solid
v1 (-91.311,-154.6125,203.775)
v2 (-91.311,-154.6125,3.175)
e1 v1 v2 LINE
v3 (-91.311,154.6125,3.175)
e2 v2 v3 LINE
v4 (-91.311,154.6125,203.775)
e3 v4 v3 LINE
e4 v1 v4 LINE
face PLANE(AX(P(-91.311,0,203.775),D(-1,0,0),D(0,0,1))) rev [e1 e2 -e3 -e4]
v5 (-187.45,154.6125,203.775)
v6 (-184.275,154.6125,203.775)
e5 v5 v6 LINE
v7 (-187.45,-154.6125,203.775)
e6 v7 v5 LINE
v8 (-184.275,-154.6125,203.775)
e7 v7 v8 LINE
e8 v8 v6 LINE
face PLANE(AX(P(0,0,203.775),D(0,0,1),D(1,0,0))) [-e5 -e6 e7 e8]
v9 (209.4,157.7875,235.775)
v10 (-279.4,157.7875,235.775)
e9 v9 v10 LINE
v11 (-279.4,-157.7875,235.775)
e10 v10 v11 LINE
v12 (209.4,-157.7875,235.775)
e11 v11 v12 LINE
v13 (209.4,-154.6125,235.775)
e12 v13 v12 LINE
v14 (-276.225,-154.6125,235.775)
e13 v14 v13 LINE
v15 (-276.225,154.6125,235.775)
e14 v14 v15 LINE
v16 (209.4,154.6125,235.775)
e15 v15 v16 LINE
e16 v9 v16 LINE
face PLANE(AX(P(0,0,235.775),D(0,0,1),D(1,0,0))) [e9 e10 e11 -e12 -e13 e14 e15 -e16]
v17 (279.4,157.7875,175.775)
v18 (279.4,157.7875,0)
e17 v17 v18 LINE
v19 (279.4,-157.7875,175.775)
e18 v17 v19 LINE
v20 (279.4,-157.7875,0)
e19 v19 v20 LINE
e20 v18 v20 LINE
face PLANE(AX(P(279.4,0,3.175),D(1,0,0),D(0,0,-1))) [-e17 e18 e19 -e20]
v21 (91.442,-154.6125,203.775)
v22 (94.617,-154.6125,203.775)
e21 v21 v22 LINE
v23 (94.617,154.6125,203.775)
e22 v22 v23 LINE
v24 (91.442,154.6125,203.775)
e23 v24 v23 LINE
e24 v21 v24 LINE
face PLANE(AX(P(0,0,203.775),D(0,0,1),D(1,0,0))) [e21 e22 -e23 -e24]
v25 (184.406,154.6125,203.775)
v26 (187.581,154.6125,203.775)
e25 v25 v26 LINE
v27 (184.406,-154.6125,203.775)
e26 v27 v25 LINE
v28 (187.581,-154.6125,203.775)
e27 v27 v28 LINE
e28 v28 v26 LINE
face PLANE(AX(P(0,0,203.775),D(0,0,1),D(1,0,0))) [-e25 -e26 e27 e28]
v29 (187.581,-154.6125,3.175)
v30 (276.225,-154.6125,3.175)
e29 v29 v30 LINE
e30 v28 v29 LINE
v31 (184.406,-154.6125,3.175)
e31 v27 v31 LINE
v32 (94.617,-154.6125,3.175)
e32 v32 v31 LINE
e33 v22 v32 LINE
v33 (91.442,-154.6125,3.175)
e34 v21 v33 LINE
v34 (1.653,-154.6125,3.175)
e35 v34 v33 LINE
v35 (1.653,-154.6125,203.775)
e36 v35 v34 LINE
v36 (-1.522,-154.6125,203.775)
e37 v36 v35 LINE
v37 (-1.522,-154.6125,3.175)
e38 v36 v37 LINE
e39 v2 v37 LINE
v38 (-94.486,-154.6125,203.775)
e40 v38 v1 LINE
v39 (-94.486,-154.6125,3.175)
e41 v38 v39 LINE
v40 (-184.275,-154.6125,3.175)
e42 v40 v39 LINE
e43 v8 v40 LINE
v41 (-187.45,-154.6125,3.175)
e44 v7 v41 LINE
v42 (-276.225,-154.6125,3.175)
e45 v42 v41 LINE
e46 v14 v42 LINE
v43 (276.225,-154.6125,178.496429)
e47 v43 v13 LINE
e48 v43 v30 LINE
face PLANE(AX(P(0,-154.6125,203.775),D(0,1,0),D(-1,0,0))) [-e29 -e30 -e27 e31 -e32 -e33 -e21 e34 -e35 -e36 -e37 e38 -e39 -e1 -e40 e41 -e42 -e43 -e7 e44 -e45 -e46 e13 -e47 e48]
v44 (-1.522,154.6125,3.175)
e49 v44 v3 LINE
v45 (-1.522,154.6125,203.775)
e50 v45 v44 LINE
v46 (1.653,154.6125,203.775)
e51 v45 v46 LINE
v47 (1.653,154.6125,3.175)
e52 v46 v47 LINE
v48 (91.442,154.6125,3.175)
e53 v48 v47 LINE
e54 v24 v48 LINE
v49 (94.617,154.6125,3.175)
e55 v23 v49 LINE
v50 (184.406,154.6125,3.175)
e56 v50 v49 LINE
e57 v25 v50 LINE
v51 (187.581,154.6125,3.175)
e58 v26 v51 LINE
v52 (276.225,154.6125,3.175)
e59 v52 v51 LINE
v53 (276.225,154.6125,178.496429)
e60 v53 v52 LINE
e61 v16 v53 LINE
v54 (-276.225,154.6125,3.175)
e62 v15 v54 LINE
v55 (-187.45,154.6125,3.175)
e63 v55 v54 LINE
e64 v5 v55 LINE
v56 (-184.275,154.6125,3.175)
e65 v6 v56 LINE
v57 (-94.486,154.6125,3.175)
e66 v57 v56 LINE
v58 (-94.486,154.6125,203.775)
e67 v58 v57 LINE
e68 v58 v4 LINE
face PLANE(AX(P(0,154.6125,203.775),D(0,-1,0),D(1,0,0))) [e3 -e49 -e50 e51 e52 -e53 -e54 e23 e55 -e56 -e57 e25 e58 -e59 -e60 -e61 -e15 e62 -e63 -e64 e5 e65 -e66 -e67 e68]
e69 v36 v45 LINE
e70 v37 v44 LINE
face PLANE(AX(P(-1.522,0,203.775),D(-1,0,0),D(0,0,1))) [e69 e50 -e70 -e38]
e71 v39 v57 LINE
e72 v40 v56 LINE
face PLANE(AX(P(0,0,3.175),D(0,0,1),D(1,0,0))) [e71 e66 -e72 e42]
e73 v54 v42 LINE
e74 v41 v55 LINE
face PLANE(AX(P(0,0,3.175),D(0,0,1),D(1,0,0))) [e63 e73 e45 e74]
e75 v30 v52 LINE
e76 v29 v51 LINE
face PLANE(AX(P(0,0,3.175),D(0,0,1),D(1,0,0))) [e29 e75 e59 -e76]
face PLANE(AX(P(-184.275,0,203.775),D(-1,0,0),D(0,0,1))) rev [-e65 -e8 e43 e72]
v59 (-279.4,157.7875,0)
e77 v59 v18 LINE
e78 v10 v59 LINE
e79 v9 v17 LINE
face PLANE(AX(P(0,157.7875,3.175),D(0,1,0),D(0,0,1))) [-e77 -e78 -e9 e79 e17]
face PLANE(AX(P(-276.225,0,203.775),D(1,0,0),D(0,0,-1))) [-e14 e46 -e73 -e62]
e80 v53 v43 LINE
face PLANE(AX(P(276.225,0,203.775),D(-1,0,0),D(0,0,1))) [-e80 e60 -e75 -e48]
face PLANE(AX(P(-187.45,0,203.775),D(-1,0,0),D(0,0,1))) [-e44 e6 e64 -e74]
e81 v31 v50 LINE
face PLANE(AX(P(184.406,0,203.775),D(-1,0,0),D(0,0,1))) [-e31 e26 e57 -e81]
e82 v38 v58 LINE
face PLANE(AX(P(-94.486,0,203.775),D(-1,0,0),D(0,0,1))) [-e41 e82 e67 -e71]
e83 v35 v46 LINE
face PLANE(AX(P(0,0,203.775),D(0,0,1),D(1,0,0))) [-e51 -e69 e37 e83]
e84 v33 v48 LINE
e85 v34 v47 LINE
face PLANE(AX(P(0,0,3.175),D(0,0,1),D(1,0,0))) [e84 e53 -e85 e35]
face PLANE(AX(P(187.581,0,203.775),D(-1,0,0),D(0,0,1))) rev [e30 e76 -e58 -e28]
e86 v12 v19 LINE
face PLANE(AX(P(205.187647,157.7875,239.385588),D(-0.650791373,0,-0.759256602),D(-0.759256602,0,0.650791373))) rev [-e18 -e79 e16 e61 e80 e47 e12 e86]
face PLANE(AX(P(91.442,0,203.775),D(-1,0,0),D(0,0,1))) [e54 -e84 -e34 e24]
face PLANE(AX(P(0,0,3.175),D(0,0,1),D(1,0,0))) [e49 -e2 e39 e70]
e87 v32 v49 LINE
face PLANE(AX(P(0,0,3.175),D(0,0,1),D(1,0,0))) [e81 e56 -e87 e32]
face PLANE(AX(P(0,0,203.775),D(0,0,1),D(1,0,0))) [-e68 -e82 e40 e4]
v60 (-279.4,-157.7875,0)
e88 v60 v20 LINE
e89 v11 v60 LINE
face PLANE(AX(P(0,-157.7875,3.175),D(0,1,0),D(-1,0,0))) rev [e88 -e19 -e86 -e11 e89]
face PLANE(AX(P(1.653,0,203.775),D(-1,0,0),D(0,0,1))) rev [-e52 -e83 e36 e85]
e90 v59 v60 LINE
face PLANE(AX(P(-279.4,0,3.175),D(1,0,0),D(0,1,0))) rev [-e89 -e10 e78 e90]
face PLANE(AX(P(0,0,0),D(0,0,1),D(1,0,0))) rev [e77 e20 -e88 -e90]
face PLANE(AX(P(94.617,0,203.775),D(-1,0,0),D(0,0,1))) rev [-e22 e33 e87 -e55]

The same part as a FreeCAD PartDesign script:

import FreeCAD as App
import Part
import Sketcher
Q = App.Units.Quantity


def add_polygon(sketch, points):
    """Adds a closed chain of lines whose ends are joined by coincident constraints."""
    first, n = sketch.GeometryCount, len(points)
    for a, b in zip(points, points[1:] + points[:1]):
        sketch.addGeometry(Part.LineSegment(App.Vector(*a, 0), App.Vector(*b, 0)), False)
    for i in range(n):
        sketch.addConstraint(Sketcher.Constraint("Coincident", first + i, 2, first + (i + 1) % n, 1))

doc = App.newDocument("Part")
body = doc.addObject("PartDesign::Body", "Body")

sketch1 = body.newObject("Sketcher::SketchObject", "Sketch")
sketch1.AttachmentSupport = (doc.getObject("XY_Plane"), [""])
sketch1.MapMode = "FlatFace"
add_polygon(sketch1, [(-279, 158), (-279, -158), (279, -158), (279, 158)])
sketch1.addConstraint(Sketcher.Constraint("Vertical", 0))
sketch1.addConstraint(Sketcher.Constraint("Horizontal", 1))
sketch1.addConstraint(Sketcher.Constraint("Vertical", 2))
sketch1.addConstraint(Sketcher.Constraint("Horizontal", 3))
sketch1.addConstraint(Sketcher.Constraint("Symmetric", 0, 2, 2, 2, -1, 1))
sketch1.addConstraint(Sketcher.Constraint("DistanceX", 1, 1, 1, 2, Q("558.8 mm")))
sketch1.addConstraint(Sketcher.Constraint("DistanceY", 0, 2, 0, 1, Q("315.575 mm")))
pad1 = body.newObject("PartDesign::Pad", "Pad")
pad1.Profile = sketch1
pad1.Length = 3.175

sketch2 = body.newObject("Sketcher::SketchObject", "Sketch001")
sketch2.AttachmentSupport = (doc.getObject("XY_Plane"), [""])
sketch2.MapMode = "FlatFace"
sketch2.AttachmentOffset = App.Placement(App.Vector(0, 0, 3.175), App.Rotation())
add_polygon(sketch2, [(-279, 158), (-279, -158), (279, -158), (279, 158)])
add_polygon(sketch2, [(-187, -155), (-276, -155), (-276, 155), (-187, 155)])
add_polygon(sketch2, [(-94, -155), (-184, -155), (-184, 155), (-94, 155)])
add_polygon(sketch2, [(-2, -155), (-91, -155), (-91, 155), (-2, 155)])
add_polygon(sketch2, [(91, -155), (2, -155), (2, 155), (91, 155)])
add_polygon(sketch2, [(184, -155), (95, -155), (95, 155), (184, 155)])
add_polygon(sketch2, [(276, -155), (188, -155), (188, 155), (276, 155)])
sketch2.addConstraint(Sketcher.Constraint("Vertical", 0))
sketch2.addConstraint(Sketcher.Constraint("Horizontal", 1))
sketch2.addConstraint(Sketcher.Constraint("Vertical", 2))
sketch2.addConstraint(Sketcher.Constraint("Horizontal", 3))
sketch2.addConstraint(Sketcher.Constraint("Horizontal", 4))
sketch2.addConstraint(Sketcher.Constraint("Vertical", 5))
sketch2.addConstraint(Sketcher.Constraint("Horizontal", 6))
sketch2.addConstraint(Sketcher.Constraint("Vertical", 7))
sketch2.addConstraint(Sketcher.Constraint("Horizontal", 8))
sketch2.addConstraint(Sketcher.Constraint("Vertical", 9))
sketch2.addConstraint(Sketcher.Constraint("Horizontal", 10))
sketch2.addConstraint(Sketcher.Constraint("Vertical", 11))
sketch2.addConstraint(Sketcher.Constraint("Horizontal", 12))
sketch2.addConstraint(Sketcher.Constraint("Vertical", 13))
sketch2.addConstraint(Sketcher.Constraint("Horizontal", 14))
sketch2.addConstraint(Sketcher.Constraint("Vertical", 15))
sketch2.addConstraint(Sketcher.Constraint("Horizontal", 16))
sketch2.addConstraint(Sketcher.Constraint("Vertical", 17))
sketch2.addConstraint(Sketcher.Constraint("Horizontal", 18))
sketch2.addConstraint(Sketcher.Constraint("Vertical", 19))
sketch2.addConstraint(Sketcher.Constraint("Horizontal", 20))
sketch2.addConstraint(Sketcher.Constraint("Vertical", 21))
sketch2.addConstraint(Sketcher.Constraint("Horizontal", 22))
sketch2.addConstraint(Sketcher.Constraint("Vertical", 23))
sketch2.addConstraint(Sketcher.Constraint("Horizontal", 24))
sketch2.addConstraint(Sketcher.Constraint("Vertical", 25))
sketch2.addConstraint(Sketcher.Constraint("Horizontal", 26))
sketch2.addConstraint(Sketcher.Constraint("Vertical", 27))
sketch2.addConstraint(Sketcher.Constraint("Symmetric", 0, 2, 2, 2, -1, 1))
sketch2.addConstraint(Sketcher.Constraint("Symmetric", 4, 2, 26, 2, -1, 1))
sketch2.addConstraint(Sketcher.Constraint("Horizontal", 7, 2, 8, 2))
sketch2.addConstraint(Sketcher.Constraint("Horizontal", 6, 2, 9, 2))
sketch2.addConstraint(Sketcher.Constraint("Horizontal", 11, 2, 12, 2))
sketch2.addConstraint(Sketcher.Constraint("Horizontal", 10, 2, 13, 2))
sketch2.addConstraint(Sketcher.Constraint("Horizontal", 15, 2, 16, 2))
sketch2.addConstraint(Sketcher.Constraint("Horizontal", 14, 2, 17, 2))
sketch2.addConstraint(Sketcher.Constraint("Horizontal", 19, 2, 20, 2))
sketch2.addConstraint(Sketcher.Constraint("Horizontal", 18, 2, 21, 2))
sketch2.addConstraint(Sketcher.Constraint("Horizontal", 23, 2, 24, 2))
sketch2.addConstraint(Sketcher.Constraint("Horizontal", 22, 2, 25, 2))
sketch2.addConstraint(Sketcher.Constraint("Equal", 10, 12))
sketch2.addConstraint(Sketcher.Constraint("Equal", 14, 16))
sketch2.addConstraint(Sketcher.Constraint("Equal", 18, 20))
sketch2.addConstraint(Sketcher.Constraint("DistanceX", 1, 1, 1, 2, Q("558.8 mm")))
sketch2.addConstraint(Sketcher.Constraint("DistanceY", 4, 2, 3, 2, Q("312.4 mm")))
sketch2.addConstraint(Sketcher.Constraint("DistanceX", 4, 2, 4, 1, Q("88.775 mm")))
sketch2.addConstraint(Sketcher.Constraint("DistanceX", 8, 2, 8, 1, Q("89.789 mm")))
sketch2.addConstraint(Sketcher.Constraint("DistanceX", 24, 2, 24, 1, Q("88.644 mm")))
sketch2.addConstraint(Sketcher.Constraint("DistanceY", 0, 2, 0, 1, Q("315.575 mm")))
sketch2.addConstraint(Sketcher.Constraint("DistanceX", 6, 2, -1, 1, Q("187.45 mm")))
sketch2.addConstraint(Sketcher.Constraint("DistanceX", 4, 2, 8, 2, Q("91.95 mm")))
sketch2.addConstraint(Sketcher.Constraint("DistanceX", 12, 2, -1, 1, Q("91.311 mm")))
sketch2.addConstraint(Sketcher.Constraint("DistanceX", -1, 1, 16, 2, Q("1.653 mm")))
sketch2.addConstraint(Sketcher.Constraint("DistanceX", -1, 1, 20, 2, Q("94.617 mm")))
pad2 = body.newObject("PartDesign::Pad", "Pad001")
pad2.Profile = sketch2
pad2.Length = 200.6

sketch3 = body.newObject("Sketcher::SketchObject", "Sketch002")
sketch3.AttachmentSupport = (doc.getObject("XY_Plane"), [""])
sketch3.MapMode = "FlatFace"
sketch3.AttachmentOffset = App.Placement(App.Vector(0, 0, 203.775), App.Rotation())
add_polygon(sketch3, [(-279, 158), (-279, -158), (279, -158), (279, 158)])
add_polygon(sketch3, [(-276, 155), (276, 155), (276, -155), (-276, -155)])
sketch3.addConstraint(Sketcher.Constraint("Vertical", 0))
sketch3.addConstraint(Sketcher.Constraint("Horizontal", 1))
sketch3.addConstraint(Sketcher.Constraint("Vertical", 2))
sketch3.addConstraint(Sketcher.Constraint("Horizontal", 3))
sketch3.addConstraint(Sketcher.Constraint("Horizontal", 4))
sketch3.addConstraint(Sketcher.Constraint("Vertical", 5))
sketch3.addConstraint(Sketcher.Constraint("Horizontal", 6))
sketch3.addConstraint(Sketcher.Constraint("Vertical", 7))
sketch3.addConstraint(Sketcher.Constraint("Symmetric", 0, 2, 2, 2, -1, 1))
sketch3.addConstraint(Sketcher.Constraint("Symmetric", 4, 2, 6, 2, -1, 1))
sketch3.addConstraint(Sketcher.Constraint("DistanceX", 1, 1, 1, 2, Q("558.8 mm")))
sketch3.addConstraint(Sketcher.Constraint("DistanceX", 4, 1, 4, 2, Q("552.45 mm")))
sketch3.addConstraint(Sketcher.Constraint("DistanceY", 1, 2, 4, 2, Q("312.4 mm")))
sketch3.addConstraint(Sketcher.Constraint("DistanceY", 0, 2, 0, 1, Q("315.575 mm")))
pad3 = body.newObject("PartDesign::Pad", "Pad002")
pad3.Profile = sketch3
pad3.Length = 32

sketch4 = body.newObject("Sketcher::SketchObject", "Sketch003")
sketch4.AttachmentSupport = (doc.getObject("XZ_Plane"), [""])
sketch4.MapMode = "FlatFace"
sketch4.AttachmentOffset = App.Placement(App.Vector(0, 0, 157.7875), App.Rotation())
add_polygon(sketch4, [(279, 236), (209, 236), (279, 176)])
sketch4.addConstraint(Sketcher.Constraint("Horizontal", 0))
sketch4.addConstraint(Sketcher.Constraint("Vertical", 2))
sketch4.addConstraint(Sketcher.Constraint("DistanceX", 0, 2, 0, 1, Q("70 mm")))
sketch4.addConstraint(Sketcher.Constraint("DistanceY", 2, 1, 2, 2, Q("60 mm")))
sketch4.addConstraint(Sketcher.Constraint("DistanceX", -1, 1, 0, 2, Q("209.4 mm")))
sketch4.addConstraint(Sketcher.Constraint("DistanceY", -1, 1, 0, 2, Q("235.775 mm")))
pocket1 = body.newObject("PartDesign::Pocket", "Pocket")
pocket1.Profile = sketch4
pocket1.Type = "ThroughAll"

doc.recompute()
